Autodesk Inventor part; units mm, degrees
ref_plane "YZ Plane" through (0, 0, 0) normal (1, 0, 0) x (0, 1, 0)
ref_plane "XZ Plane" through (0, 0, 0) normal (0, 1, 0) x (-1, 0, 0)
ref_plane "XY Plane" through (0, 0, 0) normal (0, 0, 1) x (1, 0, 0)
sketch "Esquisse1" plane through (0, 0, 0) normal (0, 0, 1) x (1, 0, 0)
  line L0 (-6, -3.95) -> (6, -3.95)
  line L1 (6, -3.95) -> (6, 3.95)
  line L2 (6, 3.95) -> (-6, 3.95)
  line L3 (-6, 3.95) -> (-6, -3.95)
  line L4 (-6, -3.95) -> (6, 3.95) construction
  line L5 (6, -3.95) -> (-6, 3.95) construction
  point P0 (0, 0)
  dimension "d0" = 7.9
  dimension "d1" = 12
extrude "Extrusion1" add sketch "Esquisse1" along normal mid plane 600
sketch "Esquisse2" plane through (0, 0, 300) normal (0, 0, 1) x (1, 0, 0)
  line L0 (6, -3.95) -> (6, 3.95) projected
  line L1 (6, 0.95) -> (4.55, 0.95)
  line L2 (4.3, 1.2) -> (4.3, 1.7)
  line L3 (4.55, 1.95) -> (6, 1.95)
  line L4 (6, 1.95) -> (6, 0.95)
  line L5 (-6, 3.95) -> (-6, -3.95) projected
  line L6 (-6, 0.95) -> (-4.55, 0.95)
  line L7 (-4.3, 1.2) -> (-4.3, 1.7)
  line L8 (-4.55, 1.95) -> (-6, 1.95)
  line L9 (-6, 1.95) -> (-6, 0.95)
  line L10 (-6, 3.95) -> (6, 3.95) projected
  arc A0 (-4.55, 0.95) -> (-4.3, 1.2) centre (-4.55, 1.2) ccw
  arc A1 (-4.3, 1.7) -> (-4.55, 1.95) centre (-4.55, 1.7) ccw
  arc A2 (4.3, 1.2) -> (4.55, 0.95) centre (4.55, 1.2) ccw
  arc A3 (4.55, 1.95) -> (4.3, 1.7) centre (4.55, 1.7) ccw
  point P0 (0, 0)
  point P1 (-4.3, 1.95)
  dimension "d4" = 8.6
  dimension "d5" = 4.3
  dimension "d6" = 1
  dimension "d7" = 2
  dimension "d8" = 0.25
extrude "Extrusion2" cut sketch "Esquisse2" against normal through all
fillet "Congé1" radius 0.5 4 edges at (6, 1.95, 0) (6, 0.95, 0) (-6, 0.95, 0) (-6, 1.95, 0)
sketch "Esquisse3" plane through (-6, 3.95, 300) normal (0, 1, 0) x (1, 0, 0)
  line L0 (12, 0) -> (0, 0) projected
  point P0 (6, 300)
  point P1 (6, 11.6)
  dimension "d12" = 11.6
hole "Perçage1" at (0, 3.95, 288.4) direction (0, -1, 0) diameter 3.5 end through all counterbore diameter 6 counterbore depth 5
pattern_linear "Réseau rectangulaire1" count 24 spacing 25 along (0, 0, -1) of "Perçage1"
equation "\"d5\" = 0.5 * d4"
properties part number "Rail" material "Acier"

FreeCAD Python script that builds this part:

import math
import FreeCAD as App
import Part
import Sketcher

V = App.Vector


def edges_at(feature, points):
    """Names of the edges that pass closest to the given points."""
    edges = feature.Shape.Edges
    near = lambda p: min(range(len(edges)), key=lambda i: edges[i].distToShape(Part.Vertex(*p))[0])
    return sorted({f"Edge{near(p) + 1}" for p in points})

doc = App.newDocument("Part")
body = doc.addObject("PartDesign::Body", "Body")

sketch1 = body.newObject("Sketcher::SketchObject", "Sketch")
sketch1.AttachmentSupport = (doc.getObject("XY_Plane"), [""])
sketch1.MapMode = "FlatFace"
sketch1.addGeometry([
    Part.LineSegment(V(-6, 3.95, 0), V(-6, -3.95, 0)),
    Part.LineSegment(V(-6, -3.95, 0), V(6, -3.95, 0)),
    Part.LineSegment(V(6, -3.95, 0), V(6, 3.95, 0)),
    Part.LineSegment(V(6, 3.95, 0), V(-6, 3.95, 0)),
], False)
sketch1.addConstraint([
    Sketcher.Constraint("Coincident", 0, 2, 1, 1),
    Sketcher.Constraint("Coincident", 1, 2, 2, 1),
    Sketcher.Constraint("Coincident", 2, 2, 3, 1),
    Sketcher.Constraint("Coincident", 3, 2, 0, 1),
    Sketcher.Constraint("Vertical", 0),
    Sketcher.Constraint("Horizontal", 1),
    Sketcher.Constraint("Vertical", 2),
    Sketcher.Constraint("Horizontal", 3),
    Sketcher.Constraint("Symmetric", 0, 2, 2, 2, -1, 1),
    Sketcher.Constraint("DistanceX", 1, 1, 1, 2, 12.0),
    Sketcher.Constraint("DistanceY", 0, 2, 0, 1, 7.9),
])
pad1 = body.newObject("PartDesign::Pad", "Pad")
pad1.Profile = sketch1
pad1.Length = 600
pad1.Midplane = True

sketch2 = body.newObject("Sketcher::SketchObject", "Sketch001")
sketch2.AttachmentSupport = (doc.getObject("XY_Plane"), [""])
sketch2.MapMode = "FlatFace"
sketch2.AttachmentOffset = App.Placement(V(0, 0, 300), App.Rotation())
sketch2.addGeometry([
    Part.LineSegment(V(4.55, 0.95, 0), V(6, 0.95, 0)),
    Part.LineSegment(V(6, 0.95, 0), V(6, 1.95, 0)),
    Part.LineSegment(V(6, 1.95, 0), V(4.55, 1.95, 0)),
    Part.ArcOfCircle(Part.Circle(V(4.55, 1.7, 0), V(0, 0, 1), 0.25), math.radians(90), math.radians(180)),
    Part.LineSegment(V(4.3, 1.7, 0), V(4.3, 1.2, 0)),
    Part.ArcOfCircle(Part.Circle(V(4.55, 1.2, 0), V(0, 0, 1), 0.25), math.radians(180), math.radians(270)),
    Part.LineSegment(V(-4.55, 1.95, 0), V(-6, 1.95, 0)),
    Part.LineSegment(V(-6, 1.95, 0), V(-6, 0.95, 0)),
    Part.LineSegment(V(-6, 0.95, 0), V(-4.55, 0.95, 0)),
    Part.ArcOfCircle(Part.Circle(V(-4.55, 1.2, 0), V(0, 0, 1), 0.25), math.radians(-90), math.radians(0)),
    Part.LineSegment(V(-4.3, 1.2, 0), V(-4.3, 1.7, 0)),
    Part.ArcOfCircle(Part.Circle(V(-4.55, 1.7, 0), V(0, 0, 1), 0.25), math.radians(0), math.radians(90)),
], False)
sketch2.addConstraint([
    Sketcher.Constraint("Coincident", 0, 2, 1, 1),
    Sketcher.Constraint("Coincident", 1, 2, 2, 1),
    Sketcher.Constraint("Tangent", 2, 2, 3, 1),
    Sketcher.Constraint("Tangent", 3, 2, 4, 1),
    Sketcher.Constraint("Tangent", 4, 2, 5, 1),
    Sketcher.Constraint("Tangent", 5, 2, 0, 1),
    Sketcher.Constraint("Coincident", 6, 2, 7, 1),
    Sketcher.Constraint("Coincident", 7, 2, 8, 1),
    Sketcher.Constraint("Tangent", 8, 2, 9, 1),
    Sketcher.Constraint("Tangent", 9, 2, 10, 1),
    Sketcher.Constraint("Tangent", 10, 2, 11, 1),
    Sketcher.Constraint("Tangent", 11, 2, 6, 1),
    Sketcher.Constraint("Horizontal", 0),
    Sketcher.Constraint("Vertical", 1),
    Sketcher.Constraint("Horizontal", 2),
    Sketcher.Constraint("Vertical", 4),
    Sketcher.Constraint("Horizontal", 6),
    Sketcher.Constraint("Vertical", 7),
    Sketcher.Constraint("Horizontal", 8),
    Sketcher.Constraint("Vertical", 10),
    Sketcher.Constraint("Equal", 3, 5),
    Sketcher.Constraint("Equal", 5, 9),
    Sketcher.Constraint("Equal", 9, 11),
    Sketcher.Constraint("Symmetric", 5, 3, 9, 3, -2),
    Sketcher.Constraint("Symmetric", 1, 2, 6, 2, -2),
    Sketcher.Constraint("DistanceY", 1, 1, 1, 2, 1.0),
    Sketcher.Constraint("Radius", 3, 0.25),
    Sketcher.Constraint("DistanceX", -1, 1, 3, 2, 4.3),
    Sketcher.Constraint("DistanceX", -1, 1, 0, 2, 6.0),
    Sketcher.Constraint("DistanceY", -1, 1, 3, 3, 1.7),
])
pocket1 = body.newObject("PartDesign::Pocket", "Pocket")
pocket1.Profile = sketch2
pocket1.Type = "ThroughAll"
doc.recompute()

fillet = body.newObject("PartDesign::Fillet", "Fillet")
fillet.Base = (pocket1, edges_at(pocket1, [
    (6, 1.95, 0),
    (6, 0.95, 0),
    (-6, 0.95, 0),
    (-6, 1.95, 0),
]))
fillet.Radius = 0.5

sketch3 = body.newObject("Sketcher::SketchObject", "Sketch002")
sketch3.AttachmentSupport = (doc.getObject("XZ_Plane"), [""])
sketch3.MapMode = "FlatFace"
sketch3.AttachmentOffset = App.Placement(V(0, 0, -3.95), App.Rotation())
sketch3.addGeometry(Part.Circle(V(0, 288.4, 0), V(0, 0, 1), 1.75), False)
sketch3.addConstraint([
    Sketcher.Constraint("PointOnObject", 0, 3, -2),
    Sketcher.Constraint("Diameter", 0, 3.5),
    Sketcher.Constraint("DistanceY", -1, 1, 0, 3, 288.4),
])
doc.recompute()
hole = body.newObject("PartDesign::Hole", "Hole")
hole.Profile = sketch3
hole.ThreadType = "None"
hole.Diameter = 3.5
hole.DepthType = "ThroughAll"
hole.HoleCutType = "Counterbore"
hole.HoleCutDiameter = 6
hole.HoleCutDepth = 5
hole.Reversed = True
doc.recompute()

linearpattern = body.newObject("PartDesign::LinearPattern", "LinearPattern")
linearpattern.Originals = [hole]
linearpattern.Direction = (doc.getObject("Z_Axis"), [""])
linearpattern.Mode = "offset"
linearpattern.Offset = 25
linearpattern.Occurrences = 24
linearpattern.Reversed = True
body.Tip = linearpattern

doc.recompute()
